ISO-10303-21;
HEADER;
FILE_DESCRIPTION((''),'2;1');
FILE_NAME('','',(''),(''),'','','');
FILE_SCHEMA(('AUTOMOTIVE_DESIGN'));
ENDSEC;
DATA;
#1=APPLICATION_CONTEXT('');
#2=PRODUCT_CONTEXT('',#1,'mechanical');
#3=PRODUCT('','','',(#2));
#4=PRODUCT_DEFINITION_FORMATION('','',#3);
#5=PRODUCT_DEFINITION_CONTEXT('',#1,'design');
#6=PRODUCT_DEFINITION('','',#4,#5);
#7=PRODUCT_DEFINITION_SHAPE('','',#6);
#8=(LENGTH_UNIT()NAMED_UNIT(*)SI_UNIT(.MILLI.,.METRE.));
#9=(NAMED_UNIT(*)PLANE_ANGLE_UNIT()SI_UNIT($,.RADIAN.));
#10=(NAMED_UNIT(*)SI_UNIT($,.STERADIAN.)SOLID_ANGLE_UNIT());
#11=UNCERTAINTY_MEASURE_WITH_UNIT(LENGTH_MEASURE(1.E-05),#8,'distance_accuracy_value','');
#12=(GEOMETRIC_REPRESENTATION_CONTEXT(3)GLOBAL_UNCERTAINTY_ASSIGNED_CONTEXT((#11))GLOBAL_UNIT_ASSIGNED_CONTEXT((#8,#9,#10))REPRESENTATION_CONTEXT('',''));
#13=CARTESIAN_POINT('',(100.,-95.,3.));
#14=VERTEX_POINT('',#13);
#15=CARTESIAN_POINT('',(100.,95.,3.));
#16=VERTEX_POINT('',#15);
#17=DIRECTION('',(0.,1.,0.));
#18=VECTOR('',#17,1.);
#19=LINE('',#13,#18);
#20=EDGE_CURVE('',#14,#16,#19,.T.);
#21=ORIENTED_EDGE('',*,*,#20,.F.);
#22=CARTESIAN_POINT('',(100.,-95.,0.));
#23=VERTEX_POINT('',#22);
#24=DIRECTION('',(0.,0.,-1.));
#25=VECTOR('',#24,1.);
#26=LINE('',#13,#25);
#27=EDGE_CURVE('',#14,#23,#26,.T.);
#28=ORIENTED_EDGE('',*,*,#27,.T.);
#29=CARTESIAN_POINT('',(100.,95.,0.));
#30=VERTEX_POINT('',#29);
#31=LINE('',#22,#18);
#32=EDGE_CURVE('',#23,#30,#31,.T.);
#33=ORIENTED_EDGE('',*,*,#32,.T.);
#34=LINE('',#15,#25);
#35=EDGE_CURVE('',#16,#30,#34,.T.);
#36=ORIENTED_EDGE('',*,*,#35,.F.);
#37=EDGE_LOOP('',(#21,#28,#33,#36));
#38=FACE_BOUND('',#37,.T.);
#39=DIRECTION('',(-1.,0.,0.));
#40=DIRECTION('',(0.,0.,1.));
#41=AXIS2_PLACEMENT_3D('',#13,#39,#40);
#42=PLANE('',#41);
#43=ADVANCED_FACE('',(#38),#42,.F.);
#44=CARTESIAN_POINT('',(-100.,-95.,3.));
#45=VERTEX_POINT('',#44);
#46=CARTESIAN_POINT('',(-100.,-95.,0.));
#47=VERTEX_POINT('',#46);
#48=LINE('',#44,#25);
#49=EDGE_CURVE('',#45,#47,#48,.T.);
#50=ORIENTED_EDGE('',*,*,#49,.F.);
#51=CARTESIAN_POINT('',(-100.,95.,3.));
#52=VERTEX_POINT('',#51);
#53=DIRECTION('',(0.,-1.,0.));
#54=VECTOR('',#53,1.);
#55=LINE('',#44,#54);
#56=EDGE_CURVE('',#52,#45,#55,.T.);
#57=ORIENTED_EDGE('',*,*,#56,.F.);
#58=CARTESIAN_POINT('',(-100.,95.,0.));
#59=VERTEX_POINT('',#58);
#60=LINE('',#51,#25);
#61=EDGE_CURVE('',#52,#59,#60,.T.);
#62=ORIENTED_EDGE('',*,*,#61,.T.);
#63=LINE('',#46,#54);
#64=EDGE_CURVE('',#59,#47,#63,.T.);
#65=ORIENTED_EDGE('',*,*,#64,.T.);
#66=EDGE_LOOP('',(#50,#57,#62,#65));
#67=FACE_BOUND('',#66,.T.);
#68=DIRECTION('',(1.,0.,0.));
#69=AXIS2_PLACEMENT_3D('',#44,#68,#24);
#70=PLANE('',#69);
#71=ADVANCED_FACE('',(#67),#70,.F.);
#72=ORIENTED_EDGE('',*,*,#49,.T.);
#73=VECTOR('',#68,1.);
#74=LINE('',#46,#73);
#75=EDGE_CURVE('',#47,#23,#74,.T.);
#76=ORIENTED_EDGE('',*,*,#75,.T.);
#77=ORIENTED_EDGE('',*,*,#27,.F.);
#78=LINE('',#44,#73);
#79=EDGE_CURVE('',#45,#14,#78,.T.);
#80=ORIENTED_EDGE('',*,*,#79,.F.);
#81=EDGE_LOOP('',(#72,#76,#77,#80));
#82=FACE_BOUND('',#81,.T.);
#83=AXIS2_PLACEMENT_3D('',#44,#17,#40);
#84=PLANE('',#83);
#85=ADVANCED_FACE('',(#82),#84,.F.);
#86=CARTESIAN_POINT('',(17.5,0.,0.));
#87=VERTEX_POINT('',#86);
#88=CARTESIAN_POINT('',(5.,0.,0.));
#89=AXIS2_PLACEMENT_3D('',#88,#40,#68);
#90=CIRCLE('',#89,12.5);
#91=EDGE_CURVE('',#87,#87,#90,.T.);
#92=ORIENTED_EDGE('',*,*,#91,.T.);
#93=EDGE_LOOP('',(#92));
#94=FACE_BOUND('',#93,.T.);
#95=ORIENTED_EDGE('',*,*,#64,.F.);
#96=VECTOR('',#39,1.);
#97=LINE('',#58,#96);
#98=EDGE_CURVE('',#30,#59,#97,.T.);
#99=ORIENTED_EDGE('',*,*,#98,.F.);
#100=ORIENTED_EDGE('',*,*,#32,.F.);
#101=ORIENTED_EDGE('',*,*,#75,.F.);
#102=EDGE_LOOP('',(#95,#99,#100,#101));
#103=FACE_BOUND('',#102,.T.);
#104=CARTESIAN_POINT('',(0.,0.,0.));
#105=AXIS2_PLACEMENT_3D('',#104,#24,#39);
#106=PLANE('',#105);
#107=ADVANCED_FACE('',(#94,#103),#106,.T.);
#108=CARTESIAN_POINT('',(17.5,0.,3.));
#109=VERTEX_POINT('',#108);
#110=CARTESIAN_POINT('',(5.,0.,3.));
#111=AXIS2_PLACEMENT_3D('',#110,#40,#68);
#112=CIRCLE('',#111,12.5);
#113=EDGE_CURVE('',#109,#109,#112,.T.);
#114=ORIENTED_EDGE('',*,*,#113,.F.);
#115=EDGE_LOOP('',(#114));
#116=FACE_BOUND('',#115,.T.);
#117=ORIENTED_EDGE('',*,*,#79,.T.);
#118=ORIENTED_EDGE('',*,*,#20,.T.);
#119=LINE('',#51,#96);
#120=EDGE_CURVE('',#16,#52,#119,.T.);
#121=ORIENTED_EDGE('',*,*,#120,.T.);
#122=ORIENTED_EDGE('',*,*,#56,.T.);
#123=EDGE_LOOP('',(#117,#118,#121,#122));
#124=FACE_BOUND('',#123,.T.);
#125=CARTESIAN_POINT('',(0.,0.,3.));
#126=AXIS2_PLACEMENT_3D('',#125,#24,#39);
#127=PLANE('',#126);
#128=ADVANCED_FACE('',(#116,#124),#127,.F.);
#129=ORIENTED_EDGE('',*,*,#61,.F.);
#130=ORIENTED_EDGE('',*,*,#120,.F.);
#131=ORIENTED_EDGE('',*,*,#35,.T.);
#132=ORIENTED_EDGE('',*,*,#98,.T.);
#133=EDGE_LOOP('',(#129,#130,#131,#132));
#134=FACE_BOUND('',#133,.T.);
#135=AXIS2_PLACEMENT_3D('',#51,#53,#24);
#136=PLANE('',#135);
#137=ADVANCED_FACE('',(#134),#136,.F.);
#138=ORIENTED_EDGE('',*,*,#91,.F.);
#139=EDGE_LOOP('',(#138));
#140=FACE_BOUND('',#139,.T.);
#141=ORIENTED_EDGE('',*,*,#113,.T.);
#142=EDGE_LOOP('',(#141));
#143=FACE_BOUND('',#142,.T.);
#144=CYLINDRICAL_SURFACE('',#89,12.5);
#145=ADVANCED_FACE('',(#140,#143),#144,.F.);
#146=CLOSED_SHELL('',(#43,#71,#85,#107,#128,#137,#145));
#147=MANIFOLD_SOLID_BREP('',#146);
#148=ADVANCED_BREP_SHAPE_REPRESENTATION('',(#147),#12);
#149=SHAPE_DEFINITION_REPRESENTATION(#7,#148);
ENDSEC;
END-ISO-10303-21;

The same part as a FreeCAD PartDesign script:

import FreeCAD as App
import Part
import Sketcher

V = App.Vector


def add_polygon(sketch, points):
    """Adds a closed chain of lines whose ends are joined by coincident constraints."""
    first, n = sketch.GeometryCount, len(points)
    for a, b in zip(points, points[1:] + points[:1]):
        sketch.addGeometry(Part.LineSegment(App.Vector(*a, 0), App.Vector(*b, 0)), False)
    for i in range(n):
        sketch.addConstraint(Sketcher.Constraint("Coincident", first + i, 2, first + (i + 1) % n, 1))

doc = App.newDocument("Part")
body = doc.addObject("PartDesign::Body", "Body")

sketch1 = body.newObject("Sketcher::SketchObject", "Sketch")
sketch1.AttachmentSupport = (doc.getObject("XY_Plane"), [""])
sketch1.MapMode = "FlatFace"
add_polygon(sketch1, [(-100, 95), (-100, -95), (100, -95), (100, 95)])
sketch1.addConstraint(Sketcher.Constraint("Vertical", 0))
sketch1.addConstraint(Sketcher.Constraint("Horizontal", 1))
sketch1.addConstraint(Sketcher.Constraint("Vertical", 2))
sketch1.addConstraint(Sketcher.Constraint("Horizontal", 3))
sketch1.addConstraint(Sketcher.Constraint("Symmetric", 0, 2, 2, 2, -1, 1))
sketch1.addConstraint(Sketcher.Constraint("DistanceX", 1, 1, 1, 2, 200.0))
sketch1.addConstraint(Sketcher.Constraint("DistanceY", 0, 2, 0, 1, 190.0))
pad1 = body.newObject("PartDesign::Pad", "Pad")
pad1.Profile = sketch1
pad1.Length = 3

sketch2 = body.newObject("Sketcher::SketchObject", "Sketch001")
sketch2.AttachmentSupport = (doc.getObject("XY_Plane"), [""])
sketch2.MapMode = "FlatFace"
sketch2.AttachmentOffset = App.Placement(V(0, 0, 3), App.Rotation())
sketch2.addGeometry(Part.Circle(V(5, 0, 0), V(0, 0, 1), 12), False)
sketch2.addConstraint(Sketcher.Constraint("PointOnObject", 0, 3, -1))
sketch2.addConstraint(Sketcher.Constraint("Diameter", 0, 25.0))
sketch2.addConstraint(Sketcher.Constraint("DistanceX", -1, 1, 0, 3, 5.0))
pocket1 = body.newObject("PartDesign::Pocket", "Pocket")
pocket1.Profile = sketch2
pocket1.Length = 3

doc.recompute()
